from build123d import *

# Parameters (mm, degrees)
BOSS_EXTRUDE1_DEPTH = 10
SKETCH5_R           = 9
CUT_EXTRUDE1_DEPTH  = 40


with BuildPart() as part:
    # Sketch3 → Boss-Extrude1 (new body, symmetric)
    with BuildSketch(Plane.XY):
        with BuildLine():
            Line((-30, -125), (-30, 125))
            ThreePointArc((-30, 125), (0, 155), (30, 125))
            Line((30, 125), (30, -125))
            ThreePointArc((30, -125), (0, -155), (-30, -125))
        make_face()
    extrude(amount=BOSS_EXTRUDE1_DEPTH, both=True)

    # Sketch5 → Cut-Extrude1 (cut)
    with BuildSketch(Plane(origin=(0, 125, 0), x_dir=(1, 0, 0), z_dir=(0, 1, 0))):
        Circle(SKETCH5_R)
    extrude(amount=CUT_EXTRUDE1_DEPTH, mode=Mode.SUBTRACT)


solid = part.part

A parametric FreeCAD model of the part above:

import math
import FreeCAD as App
import Part
import Sketcher
from FreeCAD import Vector
Q = App.Units.Quantity

doc = App.newDocument("Part")
body = doc.addObject("PartDesign::Body", "Body")

# Sketch on XY plane
sketch1 = body.newObject("Sketcher::SketchObject", "Sketch")
sketch1.AttachmentSupport = (doc.getObject("XY_Plane"), [""])
sketch1.MapMode = "FlatFace"
sketch1.addGeometry(Part.LineSegment(Vector(-30, 125, 0), Vector(-30, -125, 0)), False)
sketch1.addGeometry(Part.ArcOfCircle(Part.Circle(Vector(0, -125, 0), Vector(0, 0, 1), 30), math.radians(180), math.radians(360)), False)
sketch1.addGeometry(Part.LineSegment(Vector(30, -125, 0), Vector(30, 125, 0)), False)
sketch1.addGeometry(Part.ArcOfCircle(Part.Circle(Vector(0, 125, 0), Vector(0, 0, 1), 30), math.radians(0), math.radians(180)), False)
sketch1.addConstraint(Sketcher.Constraint("Tangent", 0, 2, 1, 1))
sketch1.addConstraint(Sketcher.Constraint("Tangent", 1, 2, 2, 1))
sketch1.addConstraint(Sketcher.Constraint("Tangent", 2, 2, 3, 1))
sketch1.addConstraint(Sketcher.Constraint("Tangent", 3, 2, 0, 1))
sketch1.addConstraint(Sketcher.Constraint("Vertical", 0))
sketch1.addConstraint(Sketcher.Constraint("Vertical", 2))
sketch1.addConstraint(Sketcher.Constraint("Symmetric", 1, 3, 3, 3, -1, 1))
sketch1.addConstraint(Sketcher.Constraint("Radius", 1, Q("30 mm")))
sketch1.addConstraint(Sketcher.Constraint("DistanceY", 0, 2, 0, 1, Q("250 mm")))
pad1 = body.newObject("PartDesign::Pad", "Pad")
pad1.Profile = sketch1
pad1.Length = 20
pad1.Midplane = True

# Sketch on XZ plane
sketch2 = body.newObject("Sketcher::SketchObject", "Sketch001")
sketch2.AttachmentSupport = (doc.getObject("XZ_Plane"), [""])
sketch2.MapMode = "FlatFace"
sketch2.AttachmentOffset = App.Placement(Vector(0, 0, -125), App.Rotation())
sketch2.addGeometry(Part.Circle(Vector(0, 0, 0), Vector(0, 0, 1), 9), False)
sketch2.addConstraint(Sketcher.Constraint("Coincident", 0, 3, -1, 1))
sketch2.addConstraint(Sketcher.Constraint("Diameter", 0, Q("18 mm")))
pocket1 = body.newObject("PartDesign::Pocket", "Pocket")
pocket1.Profile = sketch2
pocket1.Length = 40

doc.recompute()
